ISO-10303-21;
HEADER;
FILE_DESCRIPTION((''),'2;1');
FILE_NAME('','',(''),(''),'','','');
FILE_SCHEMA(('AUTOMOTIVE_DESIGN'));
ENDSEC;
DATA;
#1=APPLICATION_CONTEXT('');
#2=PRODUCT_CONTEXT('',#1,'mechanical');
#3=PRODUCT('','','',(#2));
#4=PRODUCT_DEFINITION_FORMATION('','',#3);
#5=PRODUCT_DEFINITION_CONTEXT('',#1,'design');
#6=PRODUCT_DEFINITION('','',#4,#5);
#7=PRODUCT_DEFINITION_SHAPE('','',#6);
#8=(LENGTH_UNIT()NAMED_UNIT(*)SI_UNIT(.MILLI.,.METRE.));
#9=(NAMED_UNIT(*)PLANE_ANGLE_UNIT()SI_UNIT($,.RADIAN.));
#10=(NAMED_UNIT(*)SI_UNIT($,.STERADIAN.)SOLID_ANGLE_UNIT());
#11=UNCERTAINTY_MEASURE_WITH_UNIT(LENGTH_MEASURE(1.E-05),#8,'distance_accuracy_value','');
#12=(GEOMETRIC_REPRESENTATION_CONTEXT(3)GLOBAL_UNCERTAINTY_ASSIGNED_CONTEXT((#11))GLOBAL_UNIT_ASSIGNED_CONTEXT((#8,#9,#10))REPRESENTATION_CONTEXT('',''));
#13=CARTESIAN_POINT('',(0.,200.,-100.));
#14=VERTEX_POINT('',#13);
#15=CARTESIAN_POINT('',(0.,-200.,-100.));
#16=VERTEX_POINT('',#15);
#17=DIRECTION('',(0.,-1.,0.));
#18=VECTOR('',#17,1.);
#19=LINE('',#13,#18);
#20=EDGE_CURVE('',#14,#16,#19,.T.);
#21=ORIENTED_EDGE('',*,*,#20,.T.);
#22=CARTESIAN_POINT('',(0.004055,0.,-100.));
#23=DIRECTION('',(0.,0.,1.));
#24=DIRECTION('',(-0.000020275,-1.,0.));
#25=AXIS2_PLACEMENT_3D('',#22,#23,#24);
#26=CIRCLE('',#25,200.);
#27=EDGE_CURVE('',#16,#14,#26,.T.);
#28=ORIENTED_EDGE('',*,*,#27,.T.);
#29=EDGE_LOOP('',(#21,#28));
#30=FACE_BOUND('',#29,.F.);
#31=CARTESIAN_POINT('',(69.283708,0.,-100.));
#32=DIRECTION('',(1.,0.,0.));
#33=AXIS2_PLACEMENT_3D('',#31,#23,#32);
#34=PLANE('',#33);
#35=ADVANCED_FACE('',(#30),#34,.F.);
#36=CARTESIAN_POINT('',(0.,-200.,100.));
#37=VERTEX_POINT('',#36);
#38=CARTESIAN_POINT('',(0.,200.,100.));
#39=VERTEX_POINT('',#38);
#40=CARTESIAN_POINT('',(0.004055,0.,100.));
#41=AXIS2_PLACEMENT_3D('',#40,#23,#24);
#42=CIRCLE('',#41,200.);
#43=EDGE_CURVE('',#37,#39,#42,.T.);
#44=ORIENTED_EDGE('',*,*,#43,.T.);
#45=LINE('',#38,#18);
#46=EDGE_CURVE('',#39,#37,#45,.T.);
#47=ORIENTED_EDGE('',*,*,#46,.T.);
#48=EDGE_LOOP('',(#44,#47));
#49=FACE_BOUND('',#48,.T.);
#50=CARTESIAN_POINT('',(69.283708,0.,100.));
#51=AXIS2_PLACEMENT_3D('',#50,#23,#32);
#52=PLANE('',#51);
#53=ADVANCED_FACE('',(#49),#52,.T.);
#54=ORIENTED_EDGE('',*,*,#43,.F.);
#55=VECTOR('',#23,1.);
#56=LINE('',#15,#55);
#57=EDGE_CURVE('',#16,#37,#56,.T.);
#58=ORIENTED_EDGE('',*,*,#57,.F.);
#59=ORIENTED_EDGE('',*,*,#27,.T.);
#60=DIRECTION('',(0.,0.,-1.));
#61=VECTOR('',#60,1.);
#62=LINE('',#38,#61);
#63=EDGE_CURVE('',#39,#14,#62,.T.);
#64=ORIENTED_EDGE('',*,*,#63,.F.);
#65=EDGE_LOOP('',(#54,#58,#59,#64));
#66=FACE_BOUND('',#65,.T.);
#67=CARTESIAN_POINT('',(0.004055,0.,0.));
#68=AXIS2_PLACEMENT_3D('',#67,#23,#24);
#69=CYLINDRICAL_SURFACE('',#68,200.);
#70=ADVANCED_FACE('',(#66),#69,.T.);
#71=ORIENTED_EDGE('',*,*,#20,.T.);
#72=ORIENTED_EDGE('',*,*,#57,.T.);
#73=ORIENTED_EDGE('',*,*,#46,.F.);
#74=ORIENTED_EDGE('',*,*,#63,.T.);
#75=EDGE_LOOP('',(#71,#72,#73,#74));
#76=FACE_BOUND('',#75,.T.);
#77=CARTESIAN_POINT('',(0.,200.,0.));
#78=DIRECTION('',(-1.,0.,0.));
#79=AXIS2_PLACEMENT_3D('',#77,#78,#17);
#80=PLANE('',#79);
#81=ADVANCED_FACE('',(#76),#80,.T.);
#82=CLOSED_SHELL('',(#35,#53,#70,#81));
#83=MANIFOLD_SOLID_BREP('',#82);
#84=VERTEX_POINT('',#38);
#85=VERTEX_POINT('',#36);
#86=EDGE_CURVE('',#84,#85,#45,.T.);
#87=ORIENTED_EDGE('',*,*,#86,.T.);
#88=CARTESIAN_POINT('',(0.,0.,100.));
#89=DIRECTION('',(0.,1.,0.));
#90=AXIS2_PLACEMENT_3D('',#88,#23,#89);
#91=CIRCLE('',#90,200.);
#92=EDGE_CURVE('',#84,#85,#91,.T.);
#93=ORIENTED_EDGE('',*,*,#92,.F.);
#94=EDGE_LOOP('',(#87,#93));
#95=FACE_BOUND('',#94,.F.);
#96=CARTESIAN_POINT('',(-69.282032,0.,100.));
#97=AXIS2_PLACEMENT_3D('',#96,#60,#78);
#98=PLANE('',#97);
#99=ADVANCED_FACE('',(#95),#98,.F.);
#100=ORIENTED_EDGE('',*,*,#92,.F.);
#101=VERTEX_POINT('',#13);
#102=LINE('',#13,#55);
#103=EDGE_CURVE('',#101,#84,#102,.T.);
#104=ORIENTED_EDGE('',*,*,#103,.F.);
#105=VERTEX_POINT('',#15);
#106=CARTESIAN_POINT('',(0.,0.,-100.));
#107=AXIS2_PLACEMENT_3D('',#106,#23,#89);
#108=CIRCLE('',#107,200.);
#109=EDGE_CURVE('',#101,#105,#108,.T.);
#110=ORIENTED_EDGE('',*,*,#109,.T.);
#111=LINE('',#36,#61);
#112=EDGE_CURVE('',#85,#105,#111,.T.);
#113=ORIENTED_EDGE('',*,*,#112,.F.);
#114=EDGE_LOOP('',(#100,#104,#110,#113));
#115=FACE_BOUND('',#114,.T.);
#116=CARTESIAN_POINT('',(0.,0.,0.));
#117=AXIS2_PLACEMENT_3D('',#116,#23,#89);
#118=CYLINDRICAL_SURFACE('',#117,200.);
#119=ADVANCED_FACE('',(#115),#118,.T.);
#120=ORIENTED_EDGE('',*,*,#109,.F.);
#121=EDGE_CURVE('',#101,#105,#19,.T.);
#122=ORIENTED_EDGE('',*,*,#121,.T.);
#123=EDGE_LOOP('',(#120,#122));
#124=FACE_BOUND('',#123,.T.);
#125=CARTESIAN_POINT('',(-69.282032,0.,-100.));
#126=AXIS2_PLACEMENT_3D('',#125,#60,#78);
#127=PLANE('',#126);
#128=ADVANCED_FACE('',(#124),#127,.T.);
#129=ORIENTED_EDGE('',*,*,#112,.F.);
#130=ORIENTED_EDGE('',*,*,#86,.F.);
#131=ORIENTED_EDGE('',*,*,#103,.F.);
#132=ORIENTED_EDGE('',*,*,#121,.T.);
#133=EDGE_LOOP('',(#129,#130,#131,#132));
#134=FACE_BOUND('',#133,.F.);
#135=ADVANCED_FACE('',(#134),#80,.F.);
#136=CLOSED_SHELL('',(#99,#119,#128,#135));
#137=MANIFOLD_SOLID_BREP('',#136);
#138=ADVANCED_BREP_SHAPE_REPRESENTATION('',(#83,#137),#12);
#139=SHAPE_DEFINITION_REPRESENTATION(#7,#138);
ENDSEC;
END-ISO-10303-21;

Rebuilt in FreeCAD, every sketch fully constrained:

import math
import FreeCAD as App
import Part
import Sketcher

V = App.Vector

doc = App.newDocument("Part")
body = doc.addObject("PartDesign::Body", "Body")

# Sketch on XY plane
sketch1 = body.newObject("Sketcher::SketchObject", "Sketch")
sketch1.AttachmentSupport = (doc.getObject("XY_Plane"), [""])
sketch1.MapMode = "FlatFace"
sketch1.addGeometry([
    Part.LineSegment(V(0, -200, 0), V(0, 200, 0)),
    Part.ArcOfCircle(Part.Circle(V(0, 0, 0), V(0, 0, 1), 200), math.radians(90), math.radians(270)),
], False)
sketch1.addConstraint([
    Sketcher.Constraint("Coincident", 0, 1, 1, 2),
    Sketcher.Constraint("Coincident", 1, 1, 0, 2),
    Sketcher.Constraint("Vertical", 0),
    Sketcher.Constraint("Coincident", 1, 3, -1, 1),
    Sketcher.Constraint("PointOnObject", 0, 1, -2),
    Sketcher.Constraint("Radius", 1, 200.0),
])
pad1 = body.newObject("PartDesign::Pad", "Pad")
pad1.Profile = sketch1
pad1.Length = 200
pad1.Midplane = True
body2 = doc.addObject("PartDesign::Body", "Body001")

# Sketch on XY plane
sketch2 = body2.newObject("Sketcher::SketchObject", "Sketch001")
sketch2.AttachmentSupport = (doc.getObject("XY_Plane001"), [""])
sketch2.MapMode = "FlatFace"
sketch2.addGeometry([
    Part.LineSegment(V(0, 200, 0), V(0, -200, 0)),
    Part.ArcOfCircle(Part.Circle(V(0, 0, 0), V(0, 0, 1), 200), math.radians(-90), math.radians(90)),
], False)
sketch2.addConstraint([
    Sketcher.Constraint("Coincident", 0, 1, 1, 2),
    Sketcher.Constraint("Coincident", 1, 1, 0, 2),
    Sketcher.Constraint("Vertical", 0),
    Sketcher.Constraint("Symmetric", 0, 1, 1, 1, -1, 1),
    Sketcher.Constraint("Radius", 1, 200.0),
    Sketcher.Constraint("DistanceX", -1, 1, 1, 3, 0.004055),
])
pad2 = body2.newObject("PartDesign::Pad", "Pad001")
pad2.Profile = sketch2
pad2.Length = 200
pad2.Midplane = True

doc.recompute()
